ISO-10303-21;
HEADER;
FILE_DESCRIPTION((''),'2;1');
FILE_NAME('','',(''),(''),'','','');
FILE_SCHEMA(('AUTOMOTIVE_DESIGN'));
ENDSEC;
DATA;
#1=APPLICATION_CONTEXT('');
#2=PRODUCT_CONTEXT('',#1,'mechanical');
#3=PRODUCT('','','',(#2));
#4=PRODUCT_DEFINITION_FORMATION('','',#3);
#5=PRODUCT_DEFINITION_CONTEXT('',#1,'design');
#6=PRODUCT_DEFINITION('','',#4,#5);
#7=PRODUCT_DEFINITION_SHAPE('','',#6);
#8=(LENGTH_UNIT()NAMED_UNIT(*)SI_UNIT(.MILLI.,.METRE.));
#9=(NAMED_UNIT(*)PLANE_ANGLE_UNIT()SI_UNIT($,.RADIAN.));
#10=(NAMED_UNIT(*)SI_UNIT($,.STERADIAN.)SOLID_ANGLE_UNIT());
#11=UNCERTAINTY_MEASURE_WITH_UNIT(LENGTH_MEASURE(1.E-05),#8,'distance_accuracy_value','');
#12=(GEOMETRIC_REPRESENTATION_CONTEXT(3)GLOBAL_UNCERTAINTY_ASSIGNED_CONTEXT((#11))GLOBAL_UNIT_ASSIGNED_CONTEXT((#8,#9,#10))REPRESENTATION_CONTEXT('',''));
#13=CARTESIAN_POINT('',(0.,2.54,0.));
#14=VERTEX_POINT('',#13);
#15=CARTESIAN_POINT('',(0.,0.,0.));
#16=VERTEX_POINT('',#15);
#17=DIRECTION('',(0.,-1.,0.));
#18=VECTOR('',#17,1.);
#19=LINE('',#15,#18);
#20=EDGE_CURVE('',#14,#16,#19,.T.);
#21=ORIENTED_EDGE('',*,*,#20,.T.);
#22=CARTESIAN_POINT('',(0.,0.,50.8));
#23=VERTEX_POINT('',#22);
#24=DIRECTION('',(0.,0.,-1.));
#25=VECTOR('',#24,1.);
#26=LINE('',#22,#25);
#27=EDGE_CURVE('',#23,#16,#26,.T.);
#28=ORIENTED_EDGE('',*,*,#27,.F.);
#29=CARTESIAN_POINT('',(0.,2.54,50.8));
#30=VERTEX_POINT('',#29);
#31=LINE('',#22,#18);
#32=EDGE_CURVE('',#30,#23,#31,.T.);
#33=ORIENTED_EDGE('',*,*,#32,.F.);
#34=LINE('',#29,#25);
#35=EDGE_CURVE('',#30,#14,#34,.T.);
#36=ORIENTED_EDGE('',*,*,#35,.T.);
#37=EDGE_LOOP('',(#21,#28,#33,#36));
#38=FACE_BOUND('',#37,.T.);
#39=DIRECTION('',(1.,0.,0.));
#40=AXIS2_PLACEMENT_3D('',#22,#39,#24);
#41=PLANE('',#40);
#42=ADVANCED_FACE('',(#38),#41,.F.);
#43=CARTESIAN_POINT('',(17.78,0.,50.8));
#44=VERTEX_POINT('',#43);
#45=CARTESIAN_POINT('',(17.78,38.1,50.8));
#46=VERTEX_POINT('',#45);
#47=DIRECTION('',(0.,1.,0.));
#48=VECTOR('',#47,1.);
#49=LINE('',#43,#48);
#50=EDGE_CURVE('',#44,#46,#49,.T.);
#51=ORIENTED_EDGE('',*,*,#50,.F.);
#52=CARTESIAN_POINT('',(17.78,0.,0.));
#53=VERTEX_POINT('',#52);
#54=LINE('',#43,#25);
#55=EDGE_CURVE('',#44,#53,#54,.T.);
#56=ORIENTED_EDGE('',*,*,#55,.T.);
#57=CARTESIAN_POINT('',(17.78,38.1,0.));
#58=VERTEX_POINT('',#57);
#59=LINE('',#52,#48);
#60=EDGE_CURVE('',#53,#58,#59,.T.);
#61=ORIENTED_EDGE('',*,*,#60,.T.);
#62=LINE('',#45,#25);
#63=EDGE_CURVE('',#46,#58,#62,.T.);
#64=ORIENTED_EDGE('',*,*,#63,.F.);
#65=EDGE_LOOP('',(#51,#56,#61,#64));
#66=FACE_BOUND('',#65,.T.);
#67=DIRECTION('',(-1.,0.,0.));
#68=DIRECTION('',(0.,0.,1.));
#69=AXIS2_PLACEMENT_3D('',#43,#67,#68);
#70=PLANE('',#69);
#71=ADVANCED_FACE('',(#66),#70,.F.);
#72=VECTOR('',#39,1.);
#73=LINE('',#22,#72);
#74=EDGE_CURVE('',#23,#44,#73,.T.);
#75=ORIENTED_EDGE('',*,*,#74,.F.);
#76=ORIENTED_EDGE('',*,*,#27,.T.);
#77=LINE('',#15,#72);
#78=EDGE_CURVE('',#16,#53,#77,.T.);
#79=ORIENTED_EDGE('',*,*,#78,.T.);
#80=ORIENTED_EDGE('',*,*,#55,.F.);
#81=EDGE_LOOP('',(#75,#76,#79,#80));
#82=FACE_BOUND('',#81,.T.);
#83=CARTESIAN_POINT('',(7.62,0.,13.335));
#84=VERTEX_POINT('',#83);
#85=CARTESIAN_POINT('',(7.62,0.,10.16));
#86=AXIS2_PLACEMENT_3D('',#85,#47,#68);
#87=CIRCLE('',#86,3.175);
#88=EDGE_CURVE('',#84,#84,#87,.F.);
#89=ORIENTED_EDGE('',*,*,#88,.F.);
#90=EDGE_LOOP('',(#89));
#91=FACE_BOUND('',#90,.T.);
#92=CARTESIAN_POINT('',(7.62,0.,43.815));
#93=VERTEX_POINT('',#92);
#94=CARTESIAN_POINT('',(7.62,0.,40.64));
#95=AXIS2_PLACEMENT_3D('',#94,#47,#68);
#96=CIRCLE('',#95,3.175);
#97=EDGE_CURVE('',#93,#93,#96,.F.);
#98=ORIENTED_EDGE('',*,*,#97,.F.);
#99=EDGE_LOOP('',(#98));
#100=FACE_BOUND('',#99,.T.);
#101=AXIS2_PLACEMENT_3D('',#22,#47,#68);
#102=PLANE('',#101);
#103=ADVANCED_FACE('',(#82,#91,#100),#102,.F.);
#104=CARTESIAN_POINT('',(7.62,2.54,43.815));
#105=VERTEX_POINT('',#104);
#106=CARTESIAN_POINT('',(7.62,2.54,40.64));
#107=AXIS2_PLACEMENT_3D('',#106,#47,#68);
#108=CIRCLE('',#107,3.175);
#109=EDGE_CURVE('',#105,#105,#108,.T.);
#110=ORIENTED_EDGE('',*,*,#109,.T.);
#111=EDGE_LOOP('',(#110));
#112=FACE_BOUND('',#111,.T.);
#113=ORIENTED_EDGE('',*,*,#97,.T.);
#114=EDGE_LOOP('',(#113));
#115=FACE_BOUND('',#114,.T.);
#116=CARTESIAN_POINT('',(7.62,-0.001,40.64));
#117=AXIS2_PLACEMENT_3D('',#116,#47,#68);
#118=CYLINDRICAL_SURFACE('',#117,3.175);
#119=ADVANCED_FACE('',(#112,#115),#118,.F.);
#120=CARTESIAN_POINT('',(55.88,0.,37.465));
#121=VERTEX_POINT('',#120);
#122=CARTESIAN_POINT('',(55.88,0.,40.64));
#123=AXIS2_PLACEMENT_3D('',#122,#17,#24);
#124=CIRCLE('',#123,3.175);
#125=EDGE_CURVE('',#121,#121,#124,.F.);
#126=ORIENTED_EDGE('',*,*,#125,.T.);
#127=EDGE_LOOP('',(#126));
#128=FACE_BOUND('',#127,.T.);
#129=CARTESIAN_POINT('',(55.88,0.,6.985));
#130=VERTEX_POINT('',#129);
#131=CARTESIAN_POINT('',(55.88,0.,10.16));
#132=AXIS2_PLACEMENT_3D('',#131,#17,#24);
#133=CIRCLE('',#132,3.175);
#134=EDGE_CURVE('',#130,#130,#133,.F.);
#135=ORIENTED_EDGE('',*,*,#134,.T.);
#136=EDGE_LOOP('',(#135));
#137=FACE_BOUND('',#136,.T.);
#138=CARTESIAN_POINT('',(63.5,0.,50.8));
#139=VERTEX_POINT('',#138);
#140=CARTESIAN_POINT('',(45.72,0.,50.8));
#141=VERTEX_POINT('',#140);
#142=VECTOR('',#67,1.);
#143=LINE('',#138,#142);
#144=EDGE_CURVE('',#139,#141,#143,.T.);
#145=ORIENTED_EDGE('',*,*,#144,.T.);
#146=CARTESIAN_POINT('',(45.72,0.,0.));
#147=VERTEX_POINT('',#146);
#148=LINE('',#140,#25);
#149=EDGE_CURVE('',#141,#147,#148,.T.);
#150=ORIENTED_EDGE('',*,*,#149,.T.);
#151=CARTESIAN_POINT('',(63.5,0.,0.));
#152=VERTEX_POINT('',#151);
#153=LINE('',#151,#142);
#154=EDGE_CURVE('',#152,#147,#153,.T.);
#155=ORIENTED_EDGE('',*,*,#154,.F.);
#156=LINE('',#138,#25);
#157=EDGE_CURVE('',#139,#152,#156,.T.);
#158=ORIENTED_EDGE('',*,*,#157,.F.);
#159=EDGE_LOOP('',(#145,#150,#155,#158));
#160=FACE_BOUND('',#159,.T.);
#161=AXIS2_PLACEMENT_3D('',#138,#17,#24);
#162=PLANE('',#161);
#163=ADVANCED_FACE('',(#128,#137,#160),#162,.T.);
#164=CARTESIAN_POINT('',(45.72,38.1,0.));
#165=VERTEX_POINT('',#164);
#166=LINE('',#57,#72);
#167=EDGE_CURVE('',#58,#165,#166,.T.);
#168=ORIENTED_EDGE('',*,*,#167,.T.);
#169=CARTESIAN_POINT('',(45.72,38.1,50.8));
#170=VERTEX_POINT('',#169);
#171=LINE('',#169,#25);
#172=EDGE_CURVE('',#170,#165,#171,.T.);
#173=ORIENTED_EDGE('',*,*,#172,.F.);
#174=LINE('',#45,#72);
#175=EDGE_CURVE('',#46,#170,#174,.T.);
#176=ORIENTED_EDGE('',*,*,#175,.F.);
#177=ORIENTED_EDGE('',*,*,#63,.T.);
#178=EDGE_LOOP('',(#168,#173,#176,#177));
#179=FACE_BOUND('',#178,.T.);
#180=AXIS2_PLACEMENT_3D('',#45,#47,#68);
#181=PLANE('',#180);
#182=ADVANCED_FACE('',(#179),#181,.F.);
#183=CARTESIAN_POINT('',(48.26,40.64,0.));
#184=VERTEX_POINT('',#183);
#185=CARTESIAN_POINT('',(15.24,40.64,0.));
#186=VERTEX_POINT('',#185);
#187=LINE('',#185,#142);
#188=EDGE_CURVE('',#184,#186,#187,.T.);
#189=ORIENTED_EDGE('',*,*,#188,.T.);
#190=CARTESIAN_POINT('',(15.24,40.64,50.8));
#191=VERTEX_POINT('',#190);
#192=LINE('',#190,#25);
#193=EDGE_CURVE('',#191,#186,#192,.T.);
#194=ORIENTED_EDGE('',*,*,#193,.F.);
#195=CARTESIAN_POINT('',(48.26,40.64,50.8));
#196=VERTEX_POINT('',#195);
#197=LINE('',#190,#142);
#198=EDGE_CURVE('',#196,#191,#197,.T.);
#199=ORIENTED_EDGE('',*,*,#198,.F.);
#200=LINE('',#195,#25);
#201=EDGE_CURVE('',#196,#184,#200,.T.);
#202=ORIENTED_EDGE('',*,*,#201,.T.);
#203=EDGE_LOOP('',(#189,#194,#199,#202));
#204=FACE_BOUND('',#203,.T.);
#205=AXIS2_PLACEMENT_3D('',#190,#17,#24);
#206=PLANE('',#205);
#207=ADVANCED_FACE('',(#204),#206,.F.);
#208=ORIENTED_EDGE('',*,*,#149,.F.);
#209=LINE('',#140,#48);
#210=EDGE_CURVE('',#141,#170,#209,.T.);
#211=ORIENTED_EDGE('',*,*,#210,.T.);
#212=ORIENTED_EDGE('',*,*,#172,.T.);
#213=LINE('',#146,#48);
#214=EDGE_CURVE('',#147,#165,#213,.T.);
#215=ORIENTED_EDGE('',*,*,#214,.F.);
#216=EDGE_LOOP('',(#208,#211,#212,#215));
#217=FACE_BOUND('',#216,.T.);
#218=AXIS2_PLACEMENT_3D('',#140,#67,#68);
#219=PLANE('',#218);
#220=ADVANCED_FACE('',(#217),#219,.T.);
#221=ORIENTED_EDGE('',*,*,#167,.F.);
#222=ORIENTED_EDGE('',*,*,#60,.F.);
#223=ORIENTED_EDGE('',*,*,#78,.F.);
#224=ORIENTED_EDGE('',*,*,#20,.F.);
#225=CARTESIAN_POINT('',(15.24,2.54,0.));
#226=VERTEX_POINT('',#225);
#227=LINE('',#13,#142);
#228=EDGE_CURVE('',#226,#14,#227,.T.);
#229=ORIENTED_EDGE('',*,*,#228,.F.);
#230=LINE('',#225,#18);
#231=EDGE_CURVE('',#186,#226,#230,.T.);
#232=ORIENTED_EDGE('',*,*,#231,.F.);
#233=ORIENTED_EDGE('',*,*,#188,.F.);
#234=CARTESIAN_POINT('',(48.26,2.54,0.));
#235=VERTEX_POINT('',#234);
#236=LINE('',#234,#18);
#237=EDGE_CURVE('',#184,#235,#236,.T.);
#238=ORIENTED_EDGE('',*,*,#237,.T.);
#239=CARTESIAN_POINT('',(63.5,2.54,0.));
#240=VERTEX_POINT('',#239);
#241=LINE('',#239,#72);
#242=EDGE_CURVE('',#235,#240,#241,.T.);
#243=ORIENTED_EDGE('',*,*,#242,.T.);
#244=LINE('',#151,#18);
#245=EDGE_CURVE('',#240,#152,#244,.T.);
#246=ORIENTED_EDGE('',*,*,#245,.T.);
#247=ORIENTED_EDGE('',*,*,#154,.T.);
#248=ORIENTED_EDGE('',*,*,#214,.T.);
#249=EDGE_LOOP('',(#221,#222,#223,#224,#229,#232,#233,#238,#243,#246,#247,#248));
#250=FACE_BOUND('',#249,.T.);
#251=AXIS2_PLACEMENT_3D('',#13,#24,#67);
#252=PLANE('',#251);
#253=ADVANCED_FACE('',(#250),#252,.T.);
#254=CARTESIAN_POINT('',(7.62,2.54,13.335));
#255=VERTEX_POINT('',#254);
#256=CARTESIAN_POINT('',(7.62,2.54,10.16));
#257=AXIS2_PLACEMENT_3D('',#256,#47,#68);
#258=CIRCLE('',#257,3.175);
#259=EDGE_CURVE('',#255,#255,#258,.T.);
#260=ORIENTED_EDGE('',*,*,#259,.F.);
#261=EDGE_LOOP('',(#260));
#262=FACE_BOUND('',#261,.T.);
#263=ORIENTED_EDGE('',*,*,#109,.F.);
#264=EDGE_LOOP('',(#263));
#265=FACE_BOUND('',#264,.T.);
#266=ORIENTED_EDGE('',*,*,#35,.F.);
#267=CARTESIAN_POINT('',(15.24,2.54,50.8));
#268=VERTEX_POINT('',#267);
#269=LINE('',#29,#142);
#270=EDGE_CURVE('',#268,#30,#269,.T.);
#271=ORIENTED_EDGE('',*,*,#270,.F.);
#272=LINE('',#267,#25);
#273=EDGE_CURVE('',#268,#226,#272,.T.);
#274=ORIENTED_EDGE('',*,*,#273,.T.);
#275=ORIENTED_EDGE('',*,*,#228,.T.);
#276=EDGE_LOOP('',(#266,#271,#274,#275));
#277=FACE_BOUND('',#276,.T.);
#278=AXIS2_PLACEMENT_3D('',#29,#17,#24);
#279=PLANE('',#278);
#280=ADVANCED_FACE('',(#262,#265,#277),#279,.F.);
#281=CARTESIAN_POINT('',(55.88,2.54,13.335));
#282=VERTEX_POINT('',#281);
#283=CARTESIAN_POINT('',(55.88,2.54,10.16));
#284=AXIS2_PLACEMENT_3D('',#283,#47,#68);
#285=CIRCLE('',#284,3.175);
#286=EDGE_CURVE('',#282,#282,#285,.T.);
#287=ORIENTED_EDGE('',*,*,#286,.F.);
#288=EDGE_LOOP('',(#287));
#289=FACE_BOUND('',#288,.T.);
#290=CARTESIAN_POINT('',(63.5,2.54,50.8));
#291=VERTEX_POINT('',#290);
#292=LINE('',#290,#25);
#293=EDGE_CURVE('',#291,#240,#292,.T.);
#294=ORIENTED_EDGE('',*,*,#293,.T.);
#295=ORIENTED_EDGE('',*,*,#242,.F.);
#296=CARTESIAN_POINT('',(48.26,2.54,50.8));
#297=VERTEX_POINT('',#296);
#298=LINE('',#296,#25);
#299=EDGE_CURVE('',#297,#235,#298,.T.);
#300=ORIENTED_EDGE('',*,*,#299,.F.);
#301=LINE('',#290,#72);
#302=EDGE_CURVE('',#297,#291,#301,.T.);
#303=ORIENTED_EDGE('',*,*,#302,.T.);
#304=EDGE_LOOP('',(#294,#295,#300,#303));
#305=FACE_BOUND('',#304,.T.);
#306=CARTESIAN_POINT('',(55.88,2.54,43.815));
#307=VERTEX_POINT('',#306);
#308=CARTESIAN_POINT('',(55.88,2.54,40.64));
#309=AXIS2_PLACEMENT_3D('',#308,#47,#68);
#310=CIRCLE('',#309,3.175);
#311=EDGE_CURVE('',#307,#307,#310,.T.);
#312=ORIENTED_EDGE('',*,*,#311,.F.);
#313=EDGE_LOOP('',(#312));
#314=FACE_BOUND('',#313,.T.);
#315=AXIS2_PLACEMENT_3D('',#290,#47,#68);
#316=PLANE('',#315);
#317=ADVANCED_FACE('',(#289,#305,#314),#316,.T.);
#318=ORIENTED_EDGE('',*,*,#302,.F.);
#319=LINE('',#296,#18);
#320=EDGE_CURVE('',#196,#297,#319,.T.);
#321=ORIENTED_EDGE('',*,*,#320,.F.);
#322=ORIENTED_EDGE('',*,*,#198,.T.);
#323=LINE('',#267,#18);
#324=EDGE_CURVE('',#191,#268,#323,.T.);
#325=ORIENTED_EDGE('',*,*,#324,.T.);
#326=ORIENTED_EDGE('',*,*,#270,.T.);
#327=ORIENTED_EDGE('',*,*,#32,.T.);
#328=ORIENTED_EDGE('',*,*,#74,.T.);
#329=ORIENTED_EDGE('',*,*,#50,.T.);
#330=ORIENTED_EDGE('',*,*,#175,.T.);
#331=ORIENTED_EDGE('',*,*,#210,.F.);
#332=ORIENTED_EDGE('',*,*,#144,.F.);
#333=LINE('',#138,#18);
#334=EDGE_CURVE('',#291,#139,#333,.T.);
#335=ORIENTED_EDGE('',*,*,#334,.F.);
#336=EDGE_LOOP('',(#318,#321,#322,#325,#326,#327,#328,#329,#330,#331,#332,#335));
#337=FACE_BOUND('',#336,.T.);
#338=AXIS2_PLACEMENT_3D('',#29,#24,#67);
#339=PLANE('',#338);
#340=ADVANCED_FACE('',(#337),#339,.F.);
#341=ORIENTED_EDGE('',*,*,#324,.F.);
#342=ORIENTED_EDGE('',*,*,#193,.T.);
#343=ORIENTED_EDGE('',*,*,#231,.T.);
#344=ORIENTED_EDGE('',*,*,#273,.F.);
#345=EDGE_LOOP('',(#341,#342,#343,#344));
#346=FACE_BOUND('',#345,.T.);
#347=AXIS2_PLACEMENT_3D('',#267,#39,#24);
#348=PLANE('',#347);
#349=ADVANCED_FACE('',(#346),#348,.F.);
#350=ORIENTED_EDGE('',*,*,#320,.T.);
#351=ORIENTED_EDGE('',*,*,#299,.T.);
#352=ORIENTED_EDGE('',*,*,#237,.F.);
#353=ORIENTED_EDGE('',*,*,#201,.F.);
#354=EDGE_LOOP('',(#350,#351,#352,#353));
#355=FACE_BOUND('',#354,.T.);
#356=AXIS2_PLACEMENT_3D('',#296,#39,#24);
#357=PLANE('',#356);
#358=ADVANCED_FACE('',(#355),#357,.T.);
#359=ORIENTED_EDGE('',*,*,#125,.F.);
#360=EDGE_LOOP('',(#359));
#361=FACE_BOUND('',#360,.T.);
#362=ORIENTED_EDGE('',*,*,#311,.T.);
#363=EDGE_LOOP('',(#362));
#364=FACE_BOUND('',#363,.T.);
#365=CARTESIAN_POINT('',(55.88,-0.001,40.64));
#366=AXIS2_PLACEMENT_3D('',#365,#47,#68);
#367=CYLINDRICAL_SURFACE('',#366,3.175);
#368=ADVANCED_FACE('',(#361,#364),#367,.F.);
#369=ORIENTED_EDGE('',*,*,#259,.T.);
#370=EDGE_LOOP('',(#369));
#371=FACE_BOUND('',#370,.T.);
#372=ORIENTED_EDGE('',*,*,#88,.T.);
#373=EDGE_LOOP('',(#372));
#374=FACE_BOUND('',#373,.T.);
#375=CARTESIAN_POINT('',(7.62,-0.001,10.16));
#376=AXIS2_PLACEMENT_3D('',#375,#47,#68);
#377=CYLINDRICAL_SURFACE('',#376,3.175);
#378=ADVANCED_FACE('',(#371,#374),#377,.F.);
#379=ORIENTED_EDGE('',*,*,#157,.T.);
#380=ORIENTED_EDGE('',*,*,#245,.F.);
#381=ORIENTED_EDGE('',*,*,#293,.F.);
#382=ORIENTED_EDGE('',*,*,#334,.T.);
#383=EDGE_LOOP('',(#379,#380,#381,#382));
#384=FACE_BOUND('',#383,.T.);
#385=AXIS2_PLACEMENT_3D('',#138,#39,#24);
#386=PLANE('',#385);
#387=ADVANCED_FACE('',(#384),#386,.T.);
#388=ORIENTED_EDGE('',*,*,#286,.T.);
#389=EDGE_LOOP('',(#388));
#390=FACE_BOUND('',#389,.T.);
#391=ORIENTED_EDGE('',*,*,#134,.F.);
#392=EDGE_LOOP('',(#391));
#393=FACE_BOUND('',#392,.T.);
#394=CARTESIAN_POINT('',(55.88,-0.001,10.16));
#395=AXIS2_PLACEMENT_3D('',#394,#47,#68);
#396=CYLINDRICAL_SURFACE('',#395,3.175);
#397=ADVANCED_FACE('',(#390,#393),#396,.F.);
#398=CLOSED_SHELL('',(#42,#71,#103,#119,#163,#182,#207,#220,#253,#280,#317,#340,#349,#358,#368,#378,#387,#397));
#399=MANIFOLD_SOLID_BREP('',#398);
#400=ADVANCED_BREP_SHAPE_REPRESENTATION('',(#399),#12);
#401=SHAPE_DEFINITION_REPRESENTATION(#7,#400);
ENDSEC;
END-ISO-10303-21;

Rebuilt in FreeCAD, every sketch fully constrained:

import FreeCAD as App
import Part
import Sketcher
from FreeCAD import Vector
Q = App.Units.Quantity


def add_polygon(sketch, points):
    """Adds a closed chain of lines whose ends are joined by coincident constraints."""
    first, n = sketch.GeometryCount, len(points)
    for a, b in zip(points, points[1:] + points[:1]):
        sketch.addGeometry(Part.LineSegment(App.Vector(*a, 0), App.Vector(*b, 0)), False)
    for i in range(n):
        sketch.addConstraint(Sketcher.Constraint("Coincident", first + i, 2, first + (i + 1) % n, 1))

doc = App.newDocument("Part")
params = doc.addObject("Spreadsheet::Sheet", "Params")
for row, (alias, value) in enumerate([
    ("sketch1_width", "0.7 in"),
    ("sketch1_width2", "0.6 in"),
    ("sketch1_height", "1.5 in"),
    ("sketch1_height2", "0.1 in"),
    ("sketch1_width3", "0.55 in"),
    ("pad1_length", "2 in"),
    ("sketch2_diameter", "0.25 in"),
    ("sketch3_diameter", "0.25 in"),
    ("sketch4_diameter", "0.25 in"),
    ("sketch5_diameter", "0.25 in"),
], start=1):
    params.set(f"A{row}", alias)
    params.set(f"B{row}", "=" + value)
    params.setAlias(f"B{row}", alias)

body = doc.addObject("PartDesign::Body", "Body")

# Sketch on XY plane
sketch1 = body.newObject("Sketcher::SketchObject", "Sketch")
sketch1.AttachmentSupport = (doc.getObject("XY_Plane"), [""])
sketch1.MapMode = "FlatFace"
add_polygon(sketch1, [(0, 0), (17.8, 0), (17.8, 38.1), (31.8, 38.1), (31.8, 40.6), (15.2, 40.6), (15.2, 2.5), (0, 2.5)])  # lines 0-7
sketch1.addConstraint([
    Sketcher.Constraint("Horizontal", 0),
    Sketcher.Constraint("Vertical", 1),
    Sketcher.Constraint("Horizontal", 2),
    Sketcher.Constraint("Vertical", 3),
    Sketcher.Constraint("Horizontal", 4),
    Sketcher.Constraint("Vertical", 5),
    Sketcher.Constraint("Horizontal", 6),
    Sketcher.Constraint("Vertical", 7),
    Sketcher.Constraint("Coincident", 7, 2, -1, 1),
    Sketcher.Constraint("Equal", 1, 5),
    Sketcher.Constraint("DistanceX", 0, 1, 0, 2, Q("0.7 in")),
    Sketcher.Constraint("DistanceX", 6, 2, 6, 1, Q("0.6 in")),
    Sketcher.Constraint("DistanceY", 1, 1, 1, 2, Q("1.5 in")),
    Sketcher.Constraint("DistanceY", 3, 1, 3, 2, Q("0.1 in")),
    Sketcher.Constraint("DistanceX", 2, 1, 2, 2, Q("0.55 in")),
])
sketch1.setExpression("Constraints[18]", "Params.sketch1_width")
sketch1.setExpression("Constraints[19]", "Params.sketch1_width2")
sketch1.setExpression("Constraints[20]", "Params.sketch1_height")
sketch1.setExpression("Constraints[21]", "Params.sketch1_height2")
sketch1.setExpression("Constraints[22]", "Params.sketch1_width3")
pad1 = body.newObject("PartDesign::Pad", "Pad")
pad1.Profile = sketch1
pad1.setExpression("Length", "Params.pad1_length")
doc.recompute()

datumplane = body.newObject("PartDesign::Plane", "DatumPlane")
datumplane.AttachmentSupport = (doc.getObject("YZ_Plane"), [""])
datumplane.MapMode = "FlatFace"
datumplane.AttachmentOffset = App.Placement(Vector(0, 0, 1.25 * 25.4), App.Rotation())
mirrored = body.newObject("PartDesign::Mirrored", "Mirrored")
mirrored.Originals = [pad1]
mirrored.MirrorPlane = (datumplane, [""])
body.Tip = mirrored

# Sketch on XZ plane
sketch2 = body.newObject("Sketcher::SketchObject", "Sketch001")
sketch2.AttachmentSupport = (doc.getObject("XZ_Plane"), [""])
sketch2.MapMode = "FlatFace"
sketch2.AttachmentOffset = App.Placement(Vector(0, 0, -0.1 * 25.4), App.Rotation())
sketch2.addGeometry(Part.Circle(Vector(7.6, 40.6, 0), Vector(0, 0, 1), 3.2), False)
sketch2.addConstraint([
    Sketcher.Constraint("Diameter", 0, Q("0.25 in")),
    Sketcher.Constraint("DistanceX", -1, 1, 0, 3, Q("0.3 in")),
    Sketcher.Constraint("DistanceY", -1, 1, 0, 3, Q("1.6 in")),
])
sketch2.setExpression("Constraints[0]", "Params.sketch2_diameter")
pocket1 = body.newObject("PartDesign::Pocket", "Pocket")
pocket1.Profile = sketch2
pocket1.Type = "UpToFirst"
pocket1.Reversed = True

# Sketch on XZ plane
sketch3 = body.newObject("Sketcher::SketchObject", "Sketch002")
sketch3.AttachmentSupport = (doc.getObject("XZ_Plane"), [""])
sketch3.MapMode = "FlatFace"
sketch3.AttachmentOffset = App.Placement(Vector(0, 0, -0.1 * 25.4), App.Rotation())
sketch3.addGeometry(Part.Circle(Vector(7.6, 10.2, 0), Vector(0, 0, 1), 3.2), False)
sketch3.addConstraint([
    Sketcher.Constraint("Diameter", 0, Q("0.25 in")),
    Sketcher.Constraint("DistanceX", -1, 1, 0, 3, Q("0.3 in")),
    Sketcher.Constraint("DistanceY", -1, 1, 0, 3, Q("0.4 in")),
])
sketch3.setExpression("Constraints[0]", "Params.sketch3_diameter")
pocket2 = body.newObject("PartDesign::Pocket", "Pocket001")
pocket2.Profile = sketch3
pocket2.Type = "UpToFirst"
pocket2.Reversed = True

# Sketch on XZ plane
sketch4 = body.newObject("Sketcher::SketchObject", "Sketch003")
sketch4.AttachmentSupport = (doc.getObject("XZ_Plane"), [""])
sketch4.MapMode = "FlatFace"
sketch4.AttachmentOffset = App.Placement(Vector(0, 0, -0.1 * 25.4), App.Rotation())
sketch4.addGeometry(Part.Circle(Vector(55.9, 10.2, 0), Vector(0, 0, 1), 3.2), False)
sketch4.addConstraint([
    Sketcher.Constraint("Diameter", 0, Q("0.25 in")),
    Sketcher.Constraint("DistanceX", -1, 1, 0, 3, Q("2.2 in")),
    Sketcher.Constraint("DistanceY", -1, 1, 0, 3, Q("0.4 in")),
])
sketch4.setExpression("Constraints[0]", "Params.sketch4_diameter")
pocket3 = body.newObject("PartDesign::Pocket", "Pocket002")
pocket3.Profile = sketch4
pocket3.Type = "UpToFirst"
pocket3.Reversed = True

# Sketch on XZ plane
sketch5 = body.newObject("Sketcher::SketchObject", "Sketch004")
sketch5.AttachmentSupport = (doc.getObject("XZ_Plane"), [""])
sketch5.MapMode = "FlatFace"
sketch5.AttachmentOffset = App.Placement(Vector(0, 0, -0.1 * 25.4), App.Rotation())
sketch5.addGeometry(Part.Circle(Vector(55.9, 40.6, 0), Vector(0, 0, 1), 3.2), False)
sketch5.addConstraint([
    Sketcher.Constraint("Diameter", 0, Q("0.25 in")),
    Sketcher.Constraint("DistanceX", -1, 1, 0, 3, Q("2.2 in")),
    Sketcher.Constraint("DistanceY", -1, 1, 0, 3, Q("1.6 in")),
])
sketch5.setExpression("Constraints[0]", "Params.sketch5_diameter")
pocket4 = body.newObject("PartDesign::Pocket", "Pocket003")
pocket4.Profile = sketch5
pocket4.Type = "UpToFirst"
pocket4.Reversed = True

doc.recompute()
